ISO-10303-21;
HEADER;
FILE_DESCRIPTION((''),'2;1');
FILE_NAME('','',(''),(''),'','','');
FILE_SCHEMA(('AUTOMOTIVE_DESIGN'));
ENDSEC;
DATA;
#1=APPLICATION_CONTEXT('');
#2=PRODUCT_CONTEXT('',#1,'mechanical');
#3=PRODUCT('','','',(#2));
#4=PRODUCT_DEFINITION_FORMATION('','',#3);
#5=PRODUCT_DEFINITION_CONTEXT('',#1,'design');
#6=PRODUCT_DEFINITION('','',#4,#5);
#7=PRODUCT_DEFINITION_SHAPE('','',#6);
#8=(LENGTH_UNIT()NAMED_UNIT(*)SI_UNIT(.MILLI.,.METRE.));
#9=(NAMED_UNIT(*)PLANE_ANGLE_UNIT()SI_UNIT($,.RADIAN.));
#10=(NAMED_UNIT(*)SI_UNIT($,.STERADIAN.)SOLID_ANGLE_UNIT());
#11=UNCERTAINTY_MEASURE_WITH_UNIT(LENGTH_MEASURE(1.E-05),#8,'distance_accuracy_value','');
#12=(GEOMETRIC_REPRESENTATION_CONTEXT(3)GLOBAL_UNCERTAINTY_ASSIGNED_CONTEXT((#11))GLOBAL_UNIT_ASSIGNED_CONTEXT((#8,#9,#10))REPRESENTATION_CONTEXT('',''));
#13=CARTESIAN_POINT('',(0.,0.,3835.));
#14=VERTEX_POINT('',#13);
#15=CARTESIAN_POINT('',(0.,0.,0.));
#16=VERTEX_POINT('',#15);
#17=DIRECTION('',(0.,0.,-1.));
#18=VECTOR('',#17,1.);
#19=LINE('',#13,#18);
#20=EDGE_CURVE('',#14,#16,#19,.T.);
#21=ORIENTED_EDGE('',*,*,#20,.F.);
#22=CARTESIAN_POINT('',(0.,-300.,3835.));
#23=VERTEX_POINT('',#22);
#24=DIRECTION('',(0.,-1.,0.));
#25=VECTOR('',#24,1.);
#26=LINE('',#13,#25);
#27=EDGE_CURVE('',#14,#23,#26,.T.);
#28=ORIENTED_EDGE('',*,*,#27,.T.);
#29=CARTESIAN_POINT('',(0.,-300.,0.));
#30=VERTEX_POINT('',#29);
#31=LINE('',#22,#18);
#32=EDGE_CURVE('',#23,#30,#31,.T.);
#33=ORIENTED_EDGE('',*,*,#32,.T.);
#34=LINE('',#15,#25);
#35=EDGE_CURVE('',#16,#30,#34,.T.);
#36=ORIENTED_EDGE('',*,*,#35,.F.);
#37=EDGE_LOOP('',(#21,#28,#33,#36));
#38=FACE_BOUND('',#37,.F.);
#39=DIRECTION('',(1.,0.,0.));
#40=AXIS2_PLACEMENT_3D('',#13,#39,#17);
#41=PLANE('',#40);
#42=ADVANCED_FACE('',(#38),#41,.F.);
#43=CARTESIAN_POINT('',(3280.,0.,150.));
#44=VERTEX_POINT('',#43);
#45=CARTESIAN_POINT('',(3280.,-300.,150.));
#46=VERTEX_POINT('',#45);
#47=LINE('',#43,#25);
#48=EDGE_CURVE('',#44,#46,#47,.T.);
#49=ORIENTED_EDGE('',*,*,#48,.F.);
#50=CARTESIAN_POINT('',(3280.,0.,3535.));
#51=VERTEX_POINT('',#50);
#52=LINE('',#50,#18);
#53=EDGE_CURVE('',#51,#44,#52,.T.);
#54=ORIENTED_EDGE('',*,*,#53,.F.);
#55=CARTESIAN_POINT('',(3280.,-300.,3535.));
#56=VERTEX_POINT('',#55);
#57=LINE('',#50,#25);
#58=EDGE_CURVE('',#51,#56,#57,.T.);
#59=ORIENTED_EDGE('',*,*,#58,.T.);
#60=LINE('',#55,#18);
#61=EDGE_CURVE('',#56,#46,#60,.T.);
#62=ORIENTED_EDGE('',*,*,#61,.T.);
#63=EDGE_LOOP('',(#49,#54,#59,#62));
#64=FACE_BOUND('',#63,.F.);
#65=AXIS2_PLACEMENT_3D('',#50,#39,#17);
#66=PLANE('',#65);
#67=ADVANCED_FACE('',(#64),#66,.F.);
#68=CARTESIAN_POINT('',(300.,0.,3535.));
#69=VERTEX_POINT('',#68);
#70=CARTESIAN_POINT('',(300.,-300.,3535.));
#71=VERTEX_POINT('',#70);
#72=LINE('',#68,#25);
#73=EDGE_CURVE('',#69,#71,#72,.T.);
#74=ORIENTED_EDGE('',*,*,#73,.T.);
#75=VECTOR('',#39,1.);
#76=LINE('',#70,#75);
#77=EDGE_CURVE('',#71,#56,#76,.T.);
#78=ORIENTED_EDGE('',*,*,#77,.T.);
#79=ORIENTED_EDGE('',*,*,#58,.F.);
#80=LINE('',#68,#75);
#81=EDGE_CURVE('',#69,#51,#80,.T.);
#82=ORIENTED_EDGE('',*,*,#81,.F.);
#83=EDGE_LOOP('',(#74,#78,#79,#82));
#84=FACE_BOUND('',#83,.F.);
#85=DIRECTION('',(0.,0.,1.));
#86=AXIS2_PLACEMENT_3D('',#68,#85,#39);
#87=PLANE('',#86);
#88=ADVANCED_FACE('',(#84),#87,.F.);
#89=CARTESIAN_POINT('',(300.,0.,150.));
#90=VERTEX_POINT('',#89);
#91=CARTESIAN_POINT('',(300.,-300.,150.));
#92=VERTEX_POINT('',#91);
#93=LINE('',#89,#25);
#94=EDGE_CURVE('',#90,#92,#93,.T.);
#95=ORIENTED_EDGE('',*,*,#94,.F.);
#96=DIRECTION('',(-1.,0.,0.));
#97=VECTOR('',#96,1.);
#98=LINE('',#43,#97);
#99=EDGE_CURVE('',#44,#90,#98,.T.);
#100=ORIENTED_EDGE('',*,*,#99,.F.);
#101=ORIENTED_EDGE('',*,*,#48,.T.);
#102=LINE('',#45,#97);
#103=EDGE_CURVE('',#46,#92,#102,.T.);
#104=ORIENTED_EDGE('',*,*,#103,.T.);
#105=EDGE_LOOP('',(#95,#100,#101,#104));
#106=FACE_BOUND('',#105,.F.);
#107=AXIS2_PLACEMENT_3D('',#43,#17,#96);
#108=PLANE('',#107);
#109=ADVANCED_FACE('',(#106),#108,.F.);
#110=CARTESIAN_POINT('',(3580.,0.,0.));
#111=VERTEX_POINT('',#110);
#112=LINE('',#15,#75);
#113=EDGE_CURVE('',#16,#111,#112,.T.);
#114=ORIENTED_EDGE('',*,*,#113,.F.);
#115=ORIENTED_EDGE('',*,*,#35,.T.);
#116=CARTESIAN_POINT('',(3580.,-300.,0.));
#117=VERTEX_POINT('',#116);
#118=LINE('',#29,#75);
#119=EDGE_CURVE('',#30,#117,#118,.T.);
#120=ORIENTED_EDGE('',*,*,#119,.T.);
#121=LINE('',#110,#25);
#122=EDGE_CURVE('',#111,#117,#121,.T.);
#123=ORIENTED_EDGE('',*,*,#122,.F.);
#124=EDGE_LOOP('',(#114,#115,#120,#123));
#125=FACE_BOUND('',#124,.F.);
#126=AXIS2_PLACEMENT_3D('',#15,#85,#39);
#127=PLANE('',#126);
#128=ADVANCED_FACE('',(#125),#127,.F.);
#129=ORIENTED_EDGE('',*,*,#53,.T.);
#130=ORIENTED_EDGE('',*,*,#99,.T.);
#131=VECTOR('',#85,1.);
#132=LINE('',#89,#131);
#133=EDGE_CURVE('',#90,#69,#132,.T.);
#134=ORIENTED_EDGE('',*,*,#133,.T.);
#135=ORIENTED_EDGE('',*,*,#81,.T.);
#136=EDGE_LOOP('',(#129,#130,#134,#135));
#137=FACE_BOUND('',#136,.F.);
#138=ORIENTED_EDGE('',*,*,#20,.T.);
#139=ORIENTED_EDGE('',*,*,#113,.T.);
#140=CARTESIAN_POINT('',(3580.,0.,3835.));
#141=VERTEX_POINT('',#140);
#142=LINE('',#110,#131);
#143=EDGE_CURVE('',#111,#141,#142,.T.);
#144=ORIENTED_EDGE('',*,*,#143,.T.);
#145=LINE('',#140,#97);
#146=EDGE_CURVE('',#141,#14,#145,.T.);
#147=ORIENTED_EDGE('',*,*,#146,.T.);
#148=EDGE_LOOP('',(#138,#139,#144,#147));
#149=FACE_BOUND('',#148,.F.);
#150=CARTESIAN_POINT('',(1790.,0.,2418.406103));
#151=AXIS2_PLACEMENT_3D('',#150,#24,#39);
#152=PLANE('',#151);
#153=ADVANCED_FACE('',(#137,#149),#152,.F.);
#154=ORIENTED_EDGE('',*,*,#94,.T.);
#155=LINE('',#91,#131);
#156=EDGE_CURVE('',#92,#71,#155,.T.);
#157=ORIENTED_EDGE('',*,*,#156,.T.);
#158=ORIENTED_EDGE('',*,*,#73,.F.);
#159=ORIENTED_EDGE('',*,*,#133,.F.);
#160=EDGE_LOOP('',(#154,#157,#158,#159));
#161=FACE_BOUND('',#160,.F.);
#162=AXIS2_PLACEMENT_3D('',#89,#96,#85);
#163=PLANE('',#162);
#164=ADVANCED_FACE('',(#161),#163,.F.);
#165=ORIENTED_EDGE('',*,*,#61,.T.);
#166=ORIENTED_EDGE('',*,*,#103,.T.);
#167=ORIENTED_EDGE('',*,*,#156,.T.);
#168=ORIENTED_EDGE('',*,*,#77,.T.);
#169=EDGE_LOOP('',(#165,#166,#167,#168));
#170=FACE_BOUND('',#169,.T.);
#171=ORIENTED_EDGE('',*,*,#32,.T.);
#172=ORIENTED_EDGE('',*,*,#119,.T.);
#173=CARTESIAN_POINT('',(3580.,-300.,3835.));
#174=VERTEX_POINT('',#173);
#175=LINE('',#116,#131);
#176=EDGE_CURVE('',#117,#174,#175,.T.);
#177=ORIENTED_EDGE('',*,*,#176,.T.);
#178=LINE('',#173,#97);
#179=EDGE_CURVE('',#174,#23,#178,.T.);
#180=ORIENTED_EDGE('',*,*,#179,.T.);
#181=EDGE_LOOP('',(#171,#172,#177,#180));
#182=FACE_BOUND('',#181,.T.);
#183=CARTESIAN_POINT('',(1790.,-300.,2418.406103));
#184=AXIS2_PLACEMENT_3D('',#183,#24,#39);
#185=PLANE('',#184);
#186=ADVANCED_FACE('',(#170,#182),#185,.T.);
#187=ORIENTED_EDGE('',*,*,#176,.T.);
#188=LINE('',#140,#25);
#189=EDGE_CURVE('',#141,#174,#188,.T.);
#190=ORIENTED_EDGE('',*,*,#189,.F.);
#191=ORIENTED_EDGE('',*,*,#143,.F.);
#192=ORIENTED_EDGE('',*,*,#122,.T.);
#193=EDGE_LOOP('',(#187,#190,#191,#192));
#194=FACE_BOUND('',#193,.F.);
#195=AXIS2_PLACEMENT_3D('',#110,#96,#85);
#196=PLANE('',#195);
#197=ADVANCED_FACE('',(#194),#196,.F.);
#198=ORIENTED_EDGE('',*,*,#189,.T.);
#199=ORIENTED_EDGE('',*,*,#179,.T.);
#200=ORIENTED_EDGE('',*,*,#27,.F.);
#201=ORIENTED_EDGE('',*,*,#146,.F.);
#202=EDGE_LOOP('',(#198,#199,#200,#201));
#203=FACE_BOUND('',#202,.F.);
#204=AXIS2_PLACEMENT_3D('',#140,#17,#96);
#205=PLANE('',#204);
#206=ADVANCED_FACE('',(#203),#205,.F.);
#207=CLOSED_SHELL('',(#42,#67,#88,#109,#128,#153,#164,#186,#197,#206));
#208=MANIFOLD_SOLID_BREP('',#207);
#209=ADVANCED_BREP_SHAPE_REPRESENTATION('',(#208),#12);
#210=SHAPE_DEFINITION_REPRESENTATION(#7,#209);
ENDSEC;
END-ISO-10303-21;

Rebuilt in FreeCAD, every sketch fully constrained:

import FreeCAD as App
import Part
import Sketcher
from FreeCAD import Vector
Q = App.Units.Quantity

doc = App.newDocument("Part")
params = doc.addObject("Spreadsheet::Sheet", "Params")
for row, (alias, value) in enumerate([
    ("sketch1_width", "3580 mm"),
    ("sketch1_width2", "2980 mm"),
    ("sketch1_height", "3835 mm"),
    ("sketch1_height2", "3385 mm"),
    ("pad1_length", "300 mm"),
], start=1):
    params.set(f"A{row}", alias)
    params.set(f"B{row}", "=" + value)
    params.setAlias(f"B{row}", alias)

body = doc.addObject("PartDesign::Body", "Body")

sketch1 = doc.addObject("Sketcher::SketchObject", "Sketch")
body.addObject(sketch1)
sketch1.AttachmentSupport = (doc.XZ_Plane, [""])
sketch1.MapMode = "FlatFace"
sketch1.addGeometry([
    Part.LineSegment(Vector(3580, 3835, 0), Vector(0, 3835, 0)),
    Part.LineSegment(Vector(0, 3835, 0), Vector(0, 0, 0)),
    Part.LineSegment(Vector(0, 0, 0), Vector(3580, 0, 0)),
    Part.LineSegment(Vector(3580, 0, 0), Vector(3580, 3835, 0)),
    Part.LineSegment(Vector(300, 150, 0), Vector(300, 3535, 0)),
    Part.LineSegment(Vector(300, 3535, 0), Vector(3280, 3535, 0)),
    Part.LineSegment(Vector(3280, 3535, 0), Vector(3280, 150, 0)),
    Part.LineSegment(Vector(3280, 150, 0), Vector(300, 150, 0)),
], False)
sketch1.addConstraint([
    Sketcher.Constraint("Coincident", 0, 2, 1, 1),
    Sketcher.Constraint("Coincident", 1, 2, 2, 1),
    Sketcher.Constraint("Coincident", 2, 2, 3, 1),
    Sketcher.Constraint("Coincident", 3, 2, 0, 1),
    Sketcher.Constraint("Coincident", 4, 2, 5, 1),
    Sketcher.Constraint("Coincident", 5, 2, 6, 1),
    Sketcher.Constraint("Coincident", 6, 2, 7, 1),
    Sketcher.Constraint("Coincident", 7, 2, 4, 1),
    Sketcher.Constraint("Horizontal", 0),
    Sketcher.Constraint("Vertical", 1),
    Sketcher.Constraint("Horizontal", 2),
    Sketcher.Constraint("Vertical", 3),
    Sketcher.Constraint("Vertical", 4),
    Sketcher.Constraint("Horizontal", 5),
    Sketcher.Constraint("Vertical", 6),
    Sketcher.Constraint("Horizontal", 7),
    Sketcher.Constraint("Coincident", 1, 2, -1, 1),
    Sketcher.Constraint("DistanceX", 0, 2, 0, 1, Q("3580 mm")),
    Sketcher.Constraint("DistanceX", 5, 1, 5, 2, Q("2980 mm")),
    Sketcher.Constraint("DistanceY", 1, 2, 1, 1, Q("3835 mm")),
    Sketcher.Constraint("DistanceY", 4, 1, 4, 2, Q("3385 mm")),
    Sketcher.Constraint("DistanceX", -1, 1, 4, 2, Q("300 mm")),
    Sketcher.Constraint("DistanceY", -1, 1, 4, 2, Q("3535 mm")),
])
sketch1.setExpression("Constraints[17]", "Params.sketch1_width")
sketch1.setExpression("Constraints[18]", "Params.sketch1_width2")
sketch1.setExpression("Constraints[19]", "Params.sketch1_height")
sketch1.setExpression("Constraints[20]", "Params.sketch1_height2")
pad1 = doc.addObject("PartDesign::Pad", "Pad")
body.addObject(pad1)
pad1.Profile = sketch1
pad1.setExpression("Length", "Params.pad1_length")

doc.recompute()
